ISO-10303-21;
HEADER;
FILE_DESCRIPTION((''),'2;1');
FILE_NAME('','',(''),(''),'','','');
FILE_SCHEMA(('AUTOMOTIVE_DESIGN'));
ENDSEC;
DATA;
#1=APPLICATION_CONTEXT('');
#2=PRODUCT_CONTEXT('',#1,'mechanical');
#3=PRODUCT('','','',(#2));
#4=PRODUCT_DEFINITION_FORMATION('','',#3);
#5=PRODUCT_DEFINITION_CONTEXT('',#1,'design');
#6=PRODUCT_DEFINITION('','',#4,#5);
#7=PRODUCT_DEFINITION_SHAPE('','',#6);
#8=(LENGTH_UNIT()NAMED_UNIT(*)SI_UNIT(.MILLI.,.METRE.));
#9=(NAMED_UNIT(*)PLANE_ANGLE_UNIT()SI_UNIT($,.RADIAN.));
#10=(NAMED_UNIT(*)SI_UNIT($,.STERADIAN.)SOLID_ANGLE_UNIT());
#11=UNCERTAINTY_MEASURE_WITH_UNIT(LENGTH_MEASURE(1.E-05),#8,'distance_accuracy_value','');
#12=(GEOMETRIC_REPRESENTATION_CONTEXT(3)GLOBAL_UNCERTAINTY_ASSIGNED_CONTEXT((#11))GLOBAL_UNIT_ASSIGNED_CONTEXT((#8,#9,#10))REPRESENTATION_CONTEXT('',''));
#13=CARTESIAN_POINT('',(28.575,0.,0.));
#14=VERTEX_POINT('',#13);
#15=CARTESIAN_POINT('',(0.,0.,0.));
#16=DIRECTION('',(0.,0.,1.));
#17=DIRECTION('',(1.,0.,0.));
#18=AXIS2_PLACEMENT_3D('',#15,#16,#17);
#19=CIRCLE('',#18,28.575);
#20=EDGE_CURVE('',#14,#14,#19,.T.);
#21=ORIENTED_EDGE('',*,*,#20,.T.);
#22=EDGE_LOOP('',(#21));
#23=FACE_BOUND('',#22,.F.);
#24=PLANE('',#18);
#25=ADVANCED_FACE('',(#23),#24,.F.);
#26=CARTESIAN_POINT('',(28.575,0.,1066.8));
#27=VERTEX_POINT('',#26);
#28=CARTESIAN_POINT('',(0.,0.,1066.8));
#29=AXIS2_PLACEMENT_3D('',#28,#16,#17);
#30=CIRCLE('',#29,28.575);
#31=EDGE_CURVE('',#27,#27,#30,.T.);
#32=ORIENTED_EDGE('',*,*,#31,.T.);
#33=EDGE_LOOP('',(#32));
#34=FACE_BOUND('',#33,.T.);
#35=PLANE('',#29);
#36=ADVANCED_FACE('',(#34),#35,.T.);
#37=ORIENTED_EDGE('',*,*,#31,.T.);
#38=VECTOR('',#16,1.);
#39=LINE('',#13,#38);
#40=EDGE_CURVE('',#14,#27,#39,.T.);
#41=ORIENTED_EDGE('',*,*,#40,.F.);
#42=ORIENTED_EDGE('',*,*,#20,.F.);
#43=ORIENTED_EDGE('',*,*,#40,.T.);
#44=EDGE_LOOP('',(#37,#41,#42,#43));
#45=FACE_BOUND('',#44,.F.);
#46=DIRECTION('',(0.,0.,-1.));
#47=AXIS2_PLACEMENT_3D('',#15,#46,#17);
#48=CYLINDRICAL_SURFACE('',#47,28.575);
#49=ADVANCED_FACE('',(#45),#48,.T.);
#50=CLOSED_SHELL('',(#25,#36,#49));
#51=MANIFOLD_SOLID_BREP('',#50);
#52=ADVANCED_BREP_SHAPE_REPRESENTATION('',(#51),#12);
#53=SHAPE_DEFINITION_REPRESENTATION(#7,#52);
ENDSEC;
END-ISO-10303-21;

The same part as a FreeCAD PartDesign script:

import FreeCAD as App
import Part
import Sketcher

V = App.Vector
Q = App.Units.Quantity

doc = App.newDocument("Part")
body = doc.addObject("PartDesign::Body", "Body")

sketch1 = body.newObject("Sketcher::SketchObject", "Sketch")
sketch1.AttachmentSupport = (doc.getObject("XY_Plane"), [""])
sketch1.MapMode = "FlatFace"
sketch1.addGeometry(Part.Circle(V(0, 0, 0), V(0, 0, 1), 28.575), False)
sketch1.addConstraint([
    Sketcher.Constraint("Coincident", 0, 3, -1, 1),
    Sketcher.Constraint("Diameter", 0, Q("2.25 in")),
])
pad1 = body.newObject("PartDesign::Pad", "Pad")
pad1.Profile = sketch1
pad1.Length = Q("42 in")

doc.recompute()
